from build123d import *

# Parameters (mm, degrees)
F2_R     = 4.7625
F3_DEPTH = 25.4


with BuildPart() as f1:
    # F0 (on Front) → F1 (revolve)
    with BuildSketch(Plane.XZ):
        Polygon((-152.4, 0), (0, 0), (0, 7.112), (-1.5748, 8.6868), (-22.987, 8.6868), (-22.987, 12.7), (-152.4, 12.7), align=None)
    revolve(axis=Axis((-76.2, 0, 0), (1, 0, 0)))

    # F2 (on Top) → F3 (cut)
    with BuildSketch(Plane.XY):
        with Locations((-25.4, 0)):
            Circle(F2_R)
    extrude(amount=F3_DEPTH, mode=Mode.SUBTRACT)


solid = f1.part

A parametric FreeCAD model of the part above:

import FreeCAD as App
import Part
import Sketcher

V = App.Vector
Q = App.Units.Quantity


def add_polygon(sketch, points):
    """Adds a closed chain of lines whose ends are joined by coincident constraints."""
    first, n = sketch.GeometryCount, len(points)
    for a, b in zip(points, points[1:] + points[:1]):
        sketch.addGeometry(Part.LineSegment(App.Vector(*a, 0), App.Vector(*b, 0)), False)
    for i in range(n):
        sketch.addConstraint(Sketcher.Constraint("Coincident", first + i, 2, first + (i + 1) % n, 1))

doc = App.newDocument("Part")
body = doc.addObject("PartDesign::Body", "Body")

sketch1 = body.newObject("Sketcher::SketchObject", "Sketch")
sketch1.AttachmentSupport = (doc.getObject("XZ_Plane"), [""])
sketch1.MapMode = "FlatFace"
add_polygon(sketch1, [(-152.4, 0), (0, 0), (0, 7.112), (-1.5748, 8.6868), (-22.987, 8.6868), (-22.987, 12.7), (-152.4, 12.7)])
sketch1.addConstraint([
    Sketcher.Constraint("Horizontal", 0),
    Sketcher.Constraint("Vertical", 1),
    Sketcher.Constraint("Horizontal", 3),
    Sketcher.Constraint("Vertical", 4),
    Sketcher.Constraint("Horizontal", 5),
    Sketcher.Constraint("Vertical", 6),
    Sketcher.Constraint("Coincident", 0, 2, -1, 1),
    Sketcher.Constraint("DistanceX", 0, 1, 0, 2, Q("6 in")),
    Sketcher.Constraint("DistanceY", 6, 2, 6, 1, Q("0.5 in")),
    Sketcher.Constraint("Angle", 2, Q("135 deg")),
    Sketcher.Constraint("DistanceY", 1, 1, 1, 2, Q("0.28 in")),
    Sketcher.Constraint("DistanceX", 3, 2, 3, 1, Q("0.843 in")),
    Sketcher.Constraint("DistanceX", 5, 2, 5, 1, Q("5.095 in")),
])
revolution = body.newObject("PartDesign::Revolution", "Revolution")
revolution.Profile = sketch1
revolution.ReferenceAxis = (sketch1, ["H_Axis"])
revolution.Angle = 360

sketch2 = body.newObject("Sketcher::SketchObject", "Sketch001")
sketch2.AttachmentSupport = (doc.getObject("XY_Plane"), [""])
sketch2.MapMode = "FlatFace"
sketch2.addGeometry(Part.Circle(V(-25.4, 0, 0), V(0, 0, 1), 4.7625), False)
sketch2.addConstraint([
    Sketcher.Constraint("PointOnObject", 0, 3, -1),
    Sketcher.Constraint("Diameter", 0, Q("0.375 in")),
    Sketcher.Constraint("DistanceX", 0, 3, -1, 1, Q("1 in")),
])
pocket1 = body.newObject("PartDesign::Pocket", "Pocket")
pocket1.Profile = sketch2
pocket1.Length = Q("1 in")
pocket1.Reversed = True

doc.recompute()
